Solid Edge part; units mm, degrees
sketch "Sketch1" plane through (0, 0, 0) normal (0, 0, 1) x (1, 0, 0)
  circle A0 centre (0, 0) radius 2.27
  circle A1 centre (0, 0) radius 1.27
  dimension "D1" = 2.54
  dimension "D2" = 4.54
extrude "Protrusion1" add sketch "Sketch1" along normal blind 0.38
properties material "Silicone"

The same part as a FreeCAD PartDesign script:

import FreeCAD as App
import Part
import Sketcher
from FreeCAD import Vector
Q = App.Units.Quantity

doc = App.newDocument("Part")
body = doc.addObject("PartDesign::Body", "Body")

# Sketch on XY plane
sketch1 = doc.addObject("Sketcher::SketchObject", "Sketch")
body.addObject(sketch1)
sketch1.AttachmentSupport = (doc.XY_Plane, [""])
sketch1.MapMode = "FlatFace"
sketch1.addGeometry(Part.Circle(Vector(0, 0, 0), Vector(0, 0, 1), 2.3), False)
sketch1.addGeometry(Part.Circle(Vector(0, 0, 0), Vector(0, 0, 1), 1.3), False)
sketch1.addConstraint(Sketcher.Constraint("Coincident", 0, 3, -1, 1))
sketch1.addConstraint(Sketcher.Constraint("Coincident", 1, 3, -1, 1))
sketch1.addConstraint(Sketcher.Constraint("Diameter", 1, Q("0.1 in")))
sketch1.addConstraint(Sketcher.Constraint("Diameter", 0, Q("4.54 mm")))
pad1 = doc.addObject("PartDesign::Pad", "Pad")
body.addObject(pad1)
pad1.Profile = sketch1
pad1.Length = 0.38

doc.recompute()
